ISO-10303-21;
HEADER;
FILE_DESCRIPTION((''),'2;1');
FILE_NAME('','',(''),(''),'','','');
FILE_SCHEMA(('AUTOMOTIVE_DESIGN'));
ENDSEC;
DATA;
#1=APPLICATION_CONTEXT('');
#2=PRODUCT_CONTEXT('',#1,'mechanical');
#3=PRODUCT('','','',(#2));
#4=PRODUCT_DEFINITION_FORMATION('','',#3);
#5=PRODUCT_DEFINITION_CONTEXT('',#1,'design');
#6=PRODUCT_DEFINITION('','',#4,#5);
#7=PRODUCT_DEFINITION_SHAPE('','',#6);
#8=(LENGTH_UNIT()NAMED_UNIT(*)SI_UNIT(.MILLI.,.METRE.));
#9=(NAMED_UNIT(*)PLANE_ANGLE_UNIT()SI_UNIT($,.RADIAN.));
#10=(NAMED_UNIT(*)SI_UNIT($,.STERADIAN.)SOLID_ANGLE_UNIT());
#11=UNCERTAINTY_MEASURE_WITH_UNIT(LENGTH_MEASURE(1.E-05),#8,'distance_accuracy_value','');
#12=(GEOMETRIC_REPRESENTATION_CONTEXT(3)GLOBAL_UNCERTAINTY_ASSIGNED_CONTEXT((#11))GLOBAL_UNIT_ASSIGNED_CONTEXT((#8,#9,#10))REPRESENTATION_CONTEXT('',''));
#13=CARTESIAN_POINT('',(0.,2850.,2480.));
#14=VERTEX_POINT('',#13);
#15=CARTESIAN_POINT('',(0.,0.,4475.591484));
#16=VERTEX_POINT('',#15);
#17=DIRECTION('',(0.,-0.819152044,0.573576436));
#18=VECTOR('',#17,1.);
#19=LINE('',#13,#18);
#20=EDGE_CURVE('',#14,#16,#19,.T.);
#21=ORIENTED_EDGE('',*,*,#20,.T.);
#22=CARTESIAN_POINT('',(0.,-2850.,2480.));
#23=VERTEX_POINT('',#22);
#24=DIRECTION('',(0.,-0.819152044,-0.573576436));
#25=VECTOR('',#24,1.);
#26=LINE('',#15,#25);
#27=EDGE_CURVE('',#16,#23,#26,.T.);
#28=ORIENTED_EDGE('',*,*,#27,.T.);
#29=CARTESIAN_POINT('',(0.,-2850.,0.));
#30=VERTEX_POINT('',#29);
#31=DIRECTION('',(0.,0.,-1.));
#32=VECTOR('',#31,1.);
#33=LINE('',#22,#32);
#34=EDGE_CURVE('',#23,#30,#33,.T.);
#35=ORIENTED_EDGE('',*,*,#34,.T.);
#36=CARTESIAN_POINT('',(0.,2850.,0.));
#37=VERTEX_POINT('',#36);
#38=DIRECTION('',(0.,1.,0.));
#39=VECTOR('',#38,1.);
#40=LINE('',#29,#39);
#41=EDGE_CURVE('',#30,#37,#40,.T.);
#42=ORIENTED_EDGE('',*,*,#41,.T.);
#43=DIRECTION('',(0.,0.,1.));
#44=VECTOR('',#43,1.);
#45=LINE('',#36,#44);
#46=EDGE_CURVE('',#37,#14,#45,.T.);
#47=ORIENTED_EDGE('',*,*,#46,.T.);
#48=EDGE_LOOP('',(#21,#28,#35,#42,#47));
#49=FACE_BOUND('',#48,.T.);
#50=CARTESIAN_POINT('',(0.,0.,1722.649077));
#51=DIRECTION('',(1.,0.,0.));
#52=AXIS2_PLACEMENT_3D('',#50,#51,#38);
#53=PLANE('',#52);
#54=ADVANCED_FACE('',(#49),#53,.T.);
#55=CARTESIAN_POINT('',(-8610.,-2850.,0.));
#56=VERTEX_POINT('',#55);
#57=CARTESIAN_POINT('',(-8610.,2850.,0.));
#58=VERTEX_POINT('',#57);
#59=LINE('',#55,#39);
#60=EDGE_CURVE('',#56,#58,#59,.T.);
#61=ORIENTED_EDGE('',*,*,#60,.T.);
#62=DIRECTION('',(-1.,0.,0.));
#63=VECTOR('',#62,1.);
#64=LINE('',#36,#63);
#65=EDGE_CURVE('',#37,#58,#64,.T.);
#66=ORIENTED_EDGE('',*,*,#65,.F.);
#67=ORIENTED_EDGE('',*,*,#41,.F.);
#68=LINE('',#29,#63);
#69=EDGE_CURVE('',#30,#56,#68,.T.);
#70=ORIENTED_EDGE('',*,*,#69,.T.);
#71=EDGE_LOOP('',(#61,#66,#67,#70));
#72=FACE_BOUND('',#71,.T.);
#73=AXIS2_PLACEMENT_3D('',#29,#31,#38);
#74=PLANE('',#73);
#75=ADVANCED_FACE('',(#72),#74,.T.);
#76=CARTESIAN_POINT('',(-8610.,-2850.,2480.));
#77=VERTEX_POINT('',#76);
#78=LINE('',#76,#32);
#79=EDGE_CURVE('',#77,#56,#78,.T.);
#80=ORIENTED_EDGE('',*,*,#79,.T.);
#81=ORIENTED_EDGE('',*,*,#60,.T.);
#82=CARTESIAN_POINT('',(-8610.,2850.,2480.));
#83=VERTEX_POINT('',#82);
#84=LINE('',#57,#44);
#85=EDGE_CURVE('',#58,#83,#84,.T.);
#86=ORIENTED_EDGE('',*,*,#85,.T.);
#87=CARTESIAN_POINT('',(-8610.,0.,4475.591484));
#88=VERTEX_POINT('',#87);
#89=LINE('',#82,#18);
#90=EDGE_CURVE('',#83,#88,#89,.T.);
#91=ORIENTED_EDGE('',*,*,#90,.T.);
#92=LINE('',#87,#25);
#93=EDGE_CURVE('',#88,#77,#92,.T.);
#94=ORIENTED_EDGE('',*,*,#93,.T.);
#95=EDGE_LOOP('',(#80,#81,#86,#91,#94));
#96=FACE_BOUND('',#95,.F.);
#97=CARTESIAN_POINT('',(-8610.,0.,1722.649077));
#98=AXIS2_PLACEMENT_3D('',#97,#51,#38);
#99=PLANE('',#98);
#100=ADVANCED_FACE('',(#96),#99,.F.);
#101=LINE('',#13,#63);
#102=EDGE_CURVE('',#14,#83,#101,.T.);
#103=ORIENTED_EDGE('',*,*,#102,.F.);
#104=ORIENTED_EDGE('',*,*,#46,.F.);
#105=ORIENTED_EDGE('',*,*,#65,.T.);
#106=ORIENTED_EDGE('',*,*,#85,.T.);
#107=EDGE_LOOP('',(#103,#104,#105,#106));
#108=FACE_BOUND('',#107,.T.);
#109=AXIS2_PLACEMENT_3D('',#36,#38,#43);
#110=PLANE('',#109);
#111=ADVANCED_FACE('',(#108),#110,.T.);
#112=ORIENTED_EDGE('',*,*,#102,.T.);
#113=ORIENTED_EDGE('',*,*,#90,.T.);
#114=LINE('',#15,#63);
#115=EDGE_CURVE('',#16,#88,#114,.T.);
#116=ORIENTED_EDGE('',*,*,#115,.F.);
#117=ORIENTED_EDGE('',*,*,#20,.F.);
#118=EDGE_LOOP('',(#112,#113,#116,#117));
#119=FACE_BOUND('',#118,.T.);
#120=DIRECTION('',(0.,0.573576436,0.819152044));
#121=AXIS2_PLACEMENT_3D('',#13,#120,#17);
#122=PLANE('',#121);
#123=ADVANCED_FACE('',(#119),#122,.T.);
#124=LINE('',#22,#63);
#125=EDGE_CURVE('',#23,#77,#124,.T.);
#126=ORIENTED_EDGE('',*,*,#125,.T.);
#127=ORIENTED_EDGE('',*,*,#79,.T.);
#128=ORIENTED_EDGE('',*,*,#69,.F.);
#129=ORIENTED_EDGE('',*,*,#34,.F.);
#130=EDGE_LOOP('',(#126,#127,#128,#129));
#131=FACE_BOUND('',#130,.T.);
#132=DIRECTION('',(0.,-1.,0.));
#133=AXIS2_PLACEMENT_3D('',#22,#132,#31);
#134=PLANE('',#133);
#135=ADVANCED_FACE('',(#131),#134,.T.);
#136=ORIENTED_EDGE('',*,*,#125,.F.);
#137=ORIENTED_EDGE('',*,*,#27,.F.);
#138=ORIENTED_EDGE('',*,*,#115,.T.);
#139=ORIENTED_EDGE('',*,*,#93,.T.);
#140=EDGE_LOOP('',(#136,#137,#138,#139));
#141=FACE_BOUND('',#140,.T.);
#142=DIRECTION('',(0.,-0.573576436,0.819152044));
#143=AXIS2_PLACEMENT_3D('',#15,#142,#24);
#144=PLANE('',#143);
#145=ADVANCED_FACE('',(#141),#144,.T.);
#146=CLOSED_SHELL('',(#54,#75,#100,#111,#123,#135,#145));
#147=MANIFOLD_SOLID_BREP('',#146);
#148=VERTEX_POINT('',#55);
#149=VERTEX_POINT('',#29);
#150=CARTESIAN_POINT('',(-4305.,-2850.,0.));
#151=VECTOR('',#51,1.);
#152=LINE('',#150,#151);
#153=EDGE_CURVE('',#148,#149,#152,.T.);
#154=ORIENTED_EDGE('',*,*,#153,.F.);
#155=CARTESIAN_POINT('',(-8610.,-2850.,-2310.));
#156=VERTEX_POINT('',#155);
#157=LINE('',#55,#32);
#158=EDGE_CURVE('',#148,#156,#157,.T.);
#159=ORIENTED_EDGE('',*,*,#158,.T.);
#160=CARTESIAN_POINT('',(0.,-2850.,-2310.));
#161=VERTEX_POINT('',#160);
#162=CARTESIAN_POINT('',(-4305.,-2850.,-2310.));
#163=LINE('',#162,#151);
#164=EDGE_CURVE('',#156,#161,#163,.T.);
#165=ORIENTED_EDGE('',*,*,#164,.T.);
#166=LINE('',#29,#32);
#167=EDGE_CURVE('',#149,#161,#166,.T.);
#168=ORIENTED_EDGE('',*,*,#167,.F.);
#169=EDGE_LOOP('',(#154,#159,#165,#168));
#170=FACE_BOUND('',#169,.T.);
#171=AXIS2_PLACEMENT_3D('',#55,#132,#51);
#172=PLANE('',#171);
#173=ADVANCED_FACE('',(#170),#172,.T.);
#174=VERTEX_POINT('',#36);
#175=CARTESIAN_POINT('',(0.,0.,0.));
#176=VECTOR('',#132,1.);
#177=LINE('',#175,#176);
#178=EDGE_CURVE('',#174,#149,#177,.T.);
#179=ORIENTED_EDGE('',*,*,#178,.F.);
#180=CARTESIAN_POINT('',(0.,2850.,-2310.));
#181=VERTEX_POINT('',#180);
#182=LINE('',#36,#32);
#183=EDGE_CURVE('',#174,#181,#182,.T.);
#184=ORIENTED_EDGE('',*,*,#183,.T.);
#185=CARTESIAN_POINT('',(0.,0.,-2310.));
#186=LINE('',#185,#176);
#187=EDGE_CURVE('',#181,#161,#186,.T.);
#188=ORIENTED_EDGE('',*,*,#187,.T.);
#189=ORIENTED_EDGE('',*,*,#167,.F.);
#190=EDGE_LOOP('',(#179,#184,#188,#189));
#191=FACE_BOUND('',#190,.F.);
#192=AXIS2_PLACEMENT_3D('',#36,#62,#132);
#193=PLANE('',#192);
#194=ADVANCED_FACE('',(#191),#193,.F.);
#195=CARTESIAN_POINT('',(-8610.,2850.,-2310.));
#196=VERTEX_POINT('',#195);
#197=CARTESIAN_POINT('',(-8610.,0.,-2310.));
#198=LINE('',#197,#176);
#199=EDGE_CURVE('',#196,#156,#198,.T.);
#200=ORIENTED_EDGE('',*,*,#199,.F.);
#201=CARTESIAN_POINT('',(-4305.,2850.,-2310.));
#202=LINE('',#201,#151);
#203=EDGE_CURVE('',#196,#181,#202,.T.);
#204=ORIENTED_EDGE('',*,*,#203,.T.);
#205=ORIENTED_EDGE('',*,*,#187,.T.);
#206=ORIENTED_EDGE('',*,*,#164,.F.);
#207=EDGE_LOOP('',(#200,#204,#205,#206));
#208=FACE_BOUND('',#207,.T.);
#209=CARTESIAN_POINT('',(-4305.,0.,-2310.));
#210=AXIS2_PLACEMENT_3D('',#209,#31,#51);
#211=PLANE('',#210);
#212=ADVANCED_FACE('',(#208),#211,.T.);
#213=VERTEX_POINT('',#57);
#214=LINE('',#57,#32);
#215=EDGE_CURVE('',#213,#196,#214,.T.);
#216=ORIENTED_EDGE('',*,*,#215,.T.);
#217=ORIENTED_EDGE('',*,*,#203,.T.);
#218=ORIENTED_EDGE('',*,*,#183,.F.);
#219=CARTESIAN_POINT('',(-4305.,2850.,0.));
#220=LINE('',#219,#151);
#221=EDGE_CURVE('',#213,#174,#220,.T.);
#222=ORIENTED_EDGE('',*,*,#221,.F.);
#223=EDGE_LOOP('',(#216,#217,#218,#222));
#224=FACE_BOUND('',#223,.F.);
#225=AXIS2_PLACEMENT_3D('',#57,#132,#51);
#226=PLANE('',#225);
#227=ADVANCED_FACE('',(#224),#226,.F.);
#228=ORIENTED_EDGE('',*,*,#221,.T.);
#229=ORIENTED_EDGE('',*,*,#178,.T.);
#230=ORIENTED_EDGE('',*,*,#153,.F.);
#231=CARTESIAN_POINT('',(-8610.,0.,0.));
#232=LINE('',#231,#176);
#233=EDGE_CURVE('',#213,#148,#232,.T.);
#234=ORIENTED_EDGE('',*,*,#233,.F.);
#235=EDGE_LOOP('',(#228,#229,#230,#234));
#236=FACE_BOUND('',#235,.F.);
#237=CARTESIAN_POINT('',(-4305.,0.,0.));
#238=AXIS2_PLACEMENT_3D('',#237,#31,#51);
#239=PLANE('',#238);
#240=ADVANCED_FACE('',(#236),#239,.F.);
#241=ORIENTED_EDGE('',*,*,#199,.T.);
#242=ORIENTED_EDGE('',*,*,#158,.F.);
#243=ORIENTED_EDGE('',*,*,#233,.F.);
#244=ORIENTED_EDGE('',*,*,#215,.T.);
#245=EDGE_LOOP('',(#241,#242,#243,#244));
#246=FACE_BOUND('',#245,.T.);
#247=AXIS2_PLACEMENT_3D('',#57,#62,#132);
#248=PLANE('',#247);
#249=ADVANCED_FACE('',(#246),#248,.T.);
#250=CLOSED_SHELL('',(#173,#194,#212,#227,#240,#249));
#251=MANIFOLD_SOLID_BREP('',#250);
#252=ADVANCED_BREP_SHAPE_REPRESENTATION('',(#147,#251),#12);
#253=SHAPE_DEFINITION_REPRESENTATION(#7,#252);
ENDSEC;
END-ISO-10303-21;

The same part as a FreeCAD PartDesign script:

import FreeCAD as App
import Part
import Sketcher

V = App.Vector
Q = App.Units.Quantity

doc = App.newDocument("Part")
body = doc.addObject("PartDesign::Body", "Body")

# Sketch on YZ plane
sketch1 = body.newObject("Sketcher::SketchObject", "Sketch")
sketch1.AttachmentSupport = (doc.getObject("YZ_Plane"), [""])
sketch1.MapMode = "FlatFace"
sketch1.addGeometry([
    Part.LineSegment(V(2850, 2480, 0), V(0, 4476, 0)),  # 0
    Part.LineSegment(V(0, 4476, 0), V(-2850, 2480, 0)),  # 1
    Part.LineSegment(V(-2850, 2480, 0), V(-2850, 0, 0)),  # 2
    Part.LineSegment(V(-2850, 0, 0), V(2850, 0, 0)),  # 3
    Part.LineSegment(V(2850, 0, 0), V(2850, 2480, 0)),  # 4
], False)
sketch1.addConstraint([
    Sketcher.Constraint("Coincident", 0, 2, 1, 1),
    Sketcher.Constraint("Coincident", 1, 2, 2, 1),
    Sketcher.Constraint("Coincident", 2, 2, 3, 1),
    Sketcher.Constraint("Coincident", 3, 2, 4, 1),
    Sketcher.Constraint("Coincident", 4, 2, 0, 1),
    Sketcher.Constraint("Vertical", 2),
    Sketcher.Constraint("Horizontal", 3),
    Sketcher.Constraint("Vertical", 4),
    Sketcher.Constraint("Symmetric", 2, 2, 3, 2, -1, 1),
    Sketcher.Constraint("PointOnObject", 0, 2, -2),
    Sketcher.Constraint("Horizontal", 1, 2, 4, 2),
    Sketcher.Constraint("DistanceX", 3, 1, 3, 2, Q("5700 mm")),
    Sketcher.Constraint("DistanceY", 2, 2, 2, 1, Q("2480 mm")),
    Sketcher.Constraint("Angle", 0, Q("145 deg")),
])
pad1 = body.newObject("PartDesign::Pad", "Pad")
pad1.Profile = sketch1
pad1.Length = 8610
pad1.Reversed = True
body2 = doc.addObject("PartDesign::Body", "Body001")

# Sketch on XY plane
sketch2 = body2.newObject("Sketcher::SketchObject", "Sketch001")
sketch2.AttachmentSupport = (doc.getObject("XY_Plane001"), [""])
sketch2.MapMode = "FlatFace"
sketch2.addGeometry([
    Part.LineSegment(V(-8610, -2850, 0), V(-8610, 2850, 0)),
    Part.LineSegment(V(-8610, 2850, 0), V(0, 2850, 0)),
    Part.LineSegment(V(0, 2850, 0), V(0, -2850, 0)),
    Part.LineSegment(V(0, -2850, 0), V(-8610, -2850, 0)),
], False)
sketch2.addConstraint([
    Sketcher.Constraint("Coincident", 0, 2, 1, 1),
    Sketcher.Constraint("Coincident", 1, 2, 2, 1),
    Sketcher.Constraint("Coincident", 2, 2, 3, 1),
    Sketcher.Constraint("Coincident", 3, 2, 0, 1),
    Sketcher.Constraint("Vertical", 0),
    Sketcher.Constraint("Horizontal", 1),
    Sketcher.Constraint("Vertical", 2),
    Sketcher.Constraint("Horizontal", 3),
    Sketcher.Constraint("Symmetric", 1, 2, 2, 2, -1, 1),
    Sketcher.Constraint("DistanceX", 1, 1, 1, 2, Q("8610 mm")),
    Sketcher.Constraint("DistanceY", 0, 1, 0, 2, Q("5700 mm")),
])
pad2 = body2.newObject("PartDesign::Pad", "Pad001")
pad2.Profile = sketch2
pad2.Length = 2310
pad2.Reversed = True

doc.recompute()
